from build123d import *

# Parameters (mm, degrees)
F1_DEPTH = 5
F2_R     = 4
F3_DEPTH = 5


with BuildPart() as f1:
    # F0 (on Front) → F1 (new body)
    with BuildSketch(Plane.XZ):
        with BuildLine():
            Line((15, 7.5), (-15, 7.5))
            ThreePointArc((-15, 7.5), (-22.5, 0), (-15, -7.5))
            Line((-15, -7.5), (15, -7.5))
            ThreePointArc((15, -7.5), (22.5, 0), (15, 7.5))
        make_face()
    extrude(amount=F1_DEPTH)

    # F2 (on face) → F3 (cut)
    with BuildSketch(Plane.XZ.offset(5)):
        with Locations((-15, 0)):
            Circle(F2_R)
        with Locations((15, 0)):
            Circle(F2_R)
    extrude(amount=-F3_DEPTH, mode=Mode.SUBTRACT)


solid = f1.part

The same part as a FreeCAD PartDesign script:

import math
import FreeCAD as App
import Part
import Sketcher
Q = App.Units.Quantity

doc = App.newDocument("Part")
body = doc.addObject("PartDesign::Body", "Body")

sketch1 = body.newObject("Sketcher::SketchObject", "Sketch")
sketch1.AttachmentSupport = (doc.getObject("XZ_Plane"), [""])
sketch1.MapMode = "FlatFace"
sketch1.addGeometry([
    Part.LineSegment(App.Vector(15, 8, 0), App.Vector(-15, 8, 0)),
    Part.ArcOfCircle(Part.Circle(App.Vector(-15, 0, 0), App.Vector(0, 0, 1), 8), math.radians(90), math.radians(270)),
    Part.LineSegment(App.Vector(-15, -8, 0), App.Vector(15, -8, 0)),
    Part.ArcOfCircle(Part.Circle(App.Vector(15, 0, 0), App.Vector(0, 0, 1), 8), math.radians(-90), math.radians(90)),
], False)
sketch1.addConstraint([
    Sketcher.Constraint("Tangent", 0, 2, 1, 1),
    Sketcher.Constraint("Tangent", 1, 2, 2, 1),
    Sketcher.Constraint("Tangent", 2, 2, 3, 1),
    Sketcher.Constraint("Tangent", 3, 2, 0, 1),
    Sketcher.Constraint("Horizontal", 0),
    Sketcher.Constraint("Horizontal", 2),
    Sketcher.Constraint("Symmetric", 1, 3, 3, 3, -1, 1),
    Sketcher.Constraint("Radius", 1, Q("7.5 mm")),
    Sketcher.Constraint("DistanceX", 0, 2, 0, 1, Q("30 mm")),
])
pad1 = body.newObject("PartDesign::Pad", "Pad")
pad1.Profile = sketch1
pad1.Length = 5

sketch2 = body.newObject("Sketcher::SketchObject", "Sketch001")
sketch2.AttachmentSupport = (doc.getObject("XZ_Plane"), [""])
sketch2.MapMode = "FlatFace"
sketch2.AttachmentOffset = App.Placement(App.Vector(0, 0, 5), App.Rotation())
sketch2.addGeometry([
    Part.Circle(App.Vector(-15, 0, 0), App.Vector(0, 0, 1), 4),
    Part.Circle(App.Vector(15, 0, 0), App.Vector(0, 0, 1), 4),
], False)
sketch2.addConstraint([
    Sketcher.Constraint("Equal", 0, 1),
    Sketcher.Constraint("Symmetric", 0, 3, 1, 3, -1, 1),
    Sketcher.Constraint("PointOnObject", 0, 3, -1),
    Sketcher.Constraint("Diameter", 0, Q("8 mm")),
    Sketcher.Constraint("DistanceX", 0, 3, -1, 1, Q("15 mm")),
])
pocket1 = body.newObject("PartDesign::Pocket", "Pocket")
pocket1.Profile = sketch2
pocket1.Length = 5

doc.recompute()
